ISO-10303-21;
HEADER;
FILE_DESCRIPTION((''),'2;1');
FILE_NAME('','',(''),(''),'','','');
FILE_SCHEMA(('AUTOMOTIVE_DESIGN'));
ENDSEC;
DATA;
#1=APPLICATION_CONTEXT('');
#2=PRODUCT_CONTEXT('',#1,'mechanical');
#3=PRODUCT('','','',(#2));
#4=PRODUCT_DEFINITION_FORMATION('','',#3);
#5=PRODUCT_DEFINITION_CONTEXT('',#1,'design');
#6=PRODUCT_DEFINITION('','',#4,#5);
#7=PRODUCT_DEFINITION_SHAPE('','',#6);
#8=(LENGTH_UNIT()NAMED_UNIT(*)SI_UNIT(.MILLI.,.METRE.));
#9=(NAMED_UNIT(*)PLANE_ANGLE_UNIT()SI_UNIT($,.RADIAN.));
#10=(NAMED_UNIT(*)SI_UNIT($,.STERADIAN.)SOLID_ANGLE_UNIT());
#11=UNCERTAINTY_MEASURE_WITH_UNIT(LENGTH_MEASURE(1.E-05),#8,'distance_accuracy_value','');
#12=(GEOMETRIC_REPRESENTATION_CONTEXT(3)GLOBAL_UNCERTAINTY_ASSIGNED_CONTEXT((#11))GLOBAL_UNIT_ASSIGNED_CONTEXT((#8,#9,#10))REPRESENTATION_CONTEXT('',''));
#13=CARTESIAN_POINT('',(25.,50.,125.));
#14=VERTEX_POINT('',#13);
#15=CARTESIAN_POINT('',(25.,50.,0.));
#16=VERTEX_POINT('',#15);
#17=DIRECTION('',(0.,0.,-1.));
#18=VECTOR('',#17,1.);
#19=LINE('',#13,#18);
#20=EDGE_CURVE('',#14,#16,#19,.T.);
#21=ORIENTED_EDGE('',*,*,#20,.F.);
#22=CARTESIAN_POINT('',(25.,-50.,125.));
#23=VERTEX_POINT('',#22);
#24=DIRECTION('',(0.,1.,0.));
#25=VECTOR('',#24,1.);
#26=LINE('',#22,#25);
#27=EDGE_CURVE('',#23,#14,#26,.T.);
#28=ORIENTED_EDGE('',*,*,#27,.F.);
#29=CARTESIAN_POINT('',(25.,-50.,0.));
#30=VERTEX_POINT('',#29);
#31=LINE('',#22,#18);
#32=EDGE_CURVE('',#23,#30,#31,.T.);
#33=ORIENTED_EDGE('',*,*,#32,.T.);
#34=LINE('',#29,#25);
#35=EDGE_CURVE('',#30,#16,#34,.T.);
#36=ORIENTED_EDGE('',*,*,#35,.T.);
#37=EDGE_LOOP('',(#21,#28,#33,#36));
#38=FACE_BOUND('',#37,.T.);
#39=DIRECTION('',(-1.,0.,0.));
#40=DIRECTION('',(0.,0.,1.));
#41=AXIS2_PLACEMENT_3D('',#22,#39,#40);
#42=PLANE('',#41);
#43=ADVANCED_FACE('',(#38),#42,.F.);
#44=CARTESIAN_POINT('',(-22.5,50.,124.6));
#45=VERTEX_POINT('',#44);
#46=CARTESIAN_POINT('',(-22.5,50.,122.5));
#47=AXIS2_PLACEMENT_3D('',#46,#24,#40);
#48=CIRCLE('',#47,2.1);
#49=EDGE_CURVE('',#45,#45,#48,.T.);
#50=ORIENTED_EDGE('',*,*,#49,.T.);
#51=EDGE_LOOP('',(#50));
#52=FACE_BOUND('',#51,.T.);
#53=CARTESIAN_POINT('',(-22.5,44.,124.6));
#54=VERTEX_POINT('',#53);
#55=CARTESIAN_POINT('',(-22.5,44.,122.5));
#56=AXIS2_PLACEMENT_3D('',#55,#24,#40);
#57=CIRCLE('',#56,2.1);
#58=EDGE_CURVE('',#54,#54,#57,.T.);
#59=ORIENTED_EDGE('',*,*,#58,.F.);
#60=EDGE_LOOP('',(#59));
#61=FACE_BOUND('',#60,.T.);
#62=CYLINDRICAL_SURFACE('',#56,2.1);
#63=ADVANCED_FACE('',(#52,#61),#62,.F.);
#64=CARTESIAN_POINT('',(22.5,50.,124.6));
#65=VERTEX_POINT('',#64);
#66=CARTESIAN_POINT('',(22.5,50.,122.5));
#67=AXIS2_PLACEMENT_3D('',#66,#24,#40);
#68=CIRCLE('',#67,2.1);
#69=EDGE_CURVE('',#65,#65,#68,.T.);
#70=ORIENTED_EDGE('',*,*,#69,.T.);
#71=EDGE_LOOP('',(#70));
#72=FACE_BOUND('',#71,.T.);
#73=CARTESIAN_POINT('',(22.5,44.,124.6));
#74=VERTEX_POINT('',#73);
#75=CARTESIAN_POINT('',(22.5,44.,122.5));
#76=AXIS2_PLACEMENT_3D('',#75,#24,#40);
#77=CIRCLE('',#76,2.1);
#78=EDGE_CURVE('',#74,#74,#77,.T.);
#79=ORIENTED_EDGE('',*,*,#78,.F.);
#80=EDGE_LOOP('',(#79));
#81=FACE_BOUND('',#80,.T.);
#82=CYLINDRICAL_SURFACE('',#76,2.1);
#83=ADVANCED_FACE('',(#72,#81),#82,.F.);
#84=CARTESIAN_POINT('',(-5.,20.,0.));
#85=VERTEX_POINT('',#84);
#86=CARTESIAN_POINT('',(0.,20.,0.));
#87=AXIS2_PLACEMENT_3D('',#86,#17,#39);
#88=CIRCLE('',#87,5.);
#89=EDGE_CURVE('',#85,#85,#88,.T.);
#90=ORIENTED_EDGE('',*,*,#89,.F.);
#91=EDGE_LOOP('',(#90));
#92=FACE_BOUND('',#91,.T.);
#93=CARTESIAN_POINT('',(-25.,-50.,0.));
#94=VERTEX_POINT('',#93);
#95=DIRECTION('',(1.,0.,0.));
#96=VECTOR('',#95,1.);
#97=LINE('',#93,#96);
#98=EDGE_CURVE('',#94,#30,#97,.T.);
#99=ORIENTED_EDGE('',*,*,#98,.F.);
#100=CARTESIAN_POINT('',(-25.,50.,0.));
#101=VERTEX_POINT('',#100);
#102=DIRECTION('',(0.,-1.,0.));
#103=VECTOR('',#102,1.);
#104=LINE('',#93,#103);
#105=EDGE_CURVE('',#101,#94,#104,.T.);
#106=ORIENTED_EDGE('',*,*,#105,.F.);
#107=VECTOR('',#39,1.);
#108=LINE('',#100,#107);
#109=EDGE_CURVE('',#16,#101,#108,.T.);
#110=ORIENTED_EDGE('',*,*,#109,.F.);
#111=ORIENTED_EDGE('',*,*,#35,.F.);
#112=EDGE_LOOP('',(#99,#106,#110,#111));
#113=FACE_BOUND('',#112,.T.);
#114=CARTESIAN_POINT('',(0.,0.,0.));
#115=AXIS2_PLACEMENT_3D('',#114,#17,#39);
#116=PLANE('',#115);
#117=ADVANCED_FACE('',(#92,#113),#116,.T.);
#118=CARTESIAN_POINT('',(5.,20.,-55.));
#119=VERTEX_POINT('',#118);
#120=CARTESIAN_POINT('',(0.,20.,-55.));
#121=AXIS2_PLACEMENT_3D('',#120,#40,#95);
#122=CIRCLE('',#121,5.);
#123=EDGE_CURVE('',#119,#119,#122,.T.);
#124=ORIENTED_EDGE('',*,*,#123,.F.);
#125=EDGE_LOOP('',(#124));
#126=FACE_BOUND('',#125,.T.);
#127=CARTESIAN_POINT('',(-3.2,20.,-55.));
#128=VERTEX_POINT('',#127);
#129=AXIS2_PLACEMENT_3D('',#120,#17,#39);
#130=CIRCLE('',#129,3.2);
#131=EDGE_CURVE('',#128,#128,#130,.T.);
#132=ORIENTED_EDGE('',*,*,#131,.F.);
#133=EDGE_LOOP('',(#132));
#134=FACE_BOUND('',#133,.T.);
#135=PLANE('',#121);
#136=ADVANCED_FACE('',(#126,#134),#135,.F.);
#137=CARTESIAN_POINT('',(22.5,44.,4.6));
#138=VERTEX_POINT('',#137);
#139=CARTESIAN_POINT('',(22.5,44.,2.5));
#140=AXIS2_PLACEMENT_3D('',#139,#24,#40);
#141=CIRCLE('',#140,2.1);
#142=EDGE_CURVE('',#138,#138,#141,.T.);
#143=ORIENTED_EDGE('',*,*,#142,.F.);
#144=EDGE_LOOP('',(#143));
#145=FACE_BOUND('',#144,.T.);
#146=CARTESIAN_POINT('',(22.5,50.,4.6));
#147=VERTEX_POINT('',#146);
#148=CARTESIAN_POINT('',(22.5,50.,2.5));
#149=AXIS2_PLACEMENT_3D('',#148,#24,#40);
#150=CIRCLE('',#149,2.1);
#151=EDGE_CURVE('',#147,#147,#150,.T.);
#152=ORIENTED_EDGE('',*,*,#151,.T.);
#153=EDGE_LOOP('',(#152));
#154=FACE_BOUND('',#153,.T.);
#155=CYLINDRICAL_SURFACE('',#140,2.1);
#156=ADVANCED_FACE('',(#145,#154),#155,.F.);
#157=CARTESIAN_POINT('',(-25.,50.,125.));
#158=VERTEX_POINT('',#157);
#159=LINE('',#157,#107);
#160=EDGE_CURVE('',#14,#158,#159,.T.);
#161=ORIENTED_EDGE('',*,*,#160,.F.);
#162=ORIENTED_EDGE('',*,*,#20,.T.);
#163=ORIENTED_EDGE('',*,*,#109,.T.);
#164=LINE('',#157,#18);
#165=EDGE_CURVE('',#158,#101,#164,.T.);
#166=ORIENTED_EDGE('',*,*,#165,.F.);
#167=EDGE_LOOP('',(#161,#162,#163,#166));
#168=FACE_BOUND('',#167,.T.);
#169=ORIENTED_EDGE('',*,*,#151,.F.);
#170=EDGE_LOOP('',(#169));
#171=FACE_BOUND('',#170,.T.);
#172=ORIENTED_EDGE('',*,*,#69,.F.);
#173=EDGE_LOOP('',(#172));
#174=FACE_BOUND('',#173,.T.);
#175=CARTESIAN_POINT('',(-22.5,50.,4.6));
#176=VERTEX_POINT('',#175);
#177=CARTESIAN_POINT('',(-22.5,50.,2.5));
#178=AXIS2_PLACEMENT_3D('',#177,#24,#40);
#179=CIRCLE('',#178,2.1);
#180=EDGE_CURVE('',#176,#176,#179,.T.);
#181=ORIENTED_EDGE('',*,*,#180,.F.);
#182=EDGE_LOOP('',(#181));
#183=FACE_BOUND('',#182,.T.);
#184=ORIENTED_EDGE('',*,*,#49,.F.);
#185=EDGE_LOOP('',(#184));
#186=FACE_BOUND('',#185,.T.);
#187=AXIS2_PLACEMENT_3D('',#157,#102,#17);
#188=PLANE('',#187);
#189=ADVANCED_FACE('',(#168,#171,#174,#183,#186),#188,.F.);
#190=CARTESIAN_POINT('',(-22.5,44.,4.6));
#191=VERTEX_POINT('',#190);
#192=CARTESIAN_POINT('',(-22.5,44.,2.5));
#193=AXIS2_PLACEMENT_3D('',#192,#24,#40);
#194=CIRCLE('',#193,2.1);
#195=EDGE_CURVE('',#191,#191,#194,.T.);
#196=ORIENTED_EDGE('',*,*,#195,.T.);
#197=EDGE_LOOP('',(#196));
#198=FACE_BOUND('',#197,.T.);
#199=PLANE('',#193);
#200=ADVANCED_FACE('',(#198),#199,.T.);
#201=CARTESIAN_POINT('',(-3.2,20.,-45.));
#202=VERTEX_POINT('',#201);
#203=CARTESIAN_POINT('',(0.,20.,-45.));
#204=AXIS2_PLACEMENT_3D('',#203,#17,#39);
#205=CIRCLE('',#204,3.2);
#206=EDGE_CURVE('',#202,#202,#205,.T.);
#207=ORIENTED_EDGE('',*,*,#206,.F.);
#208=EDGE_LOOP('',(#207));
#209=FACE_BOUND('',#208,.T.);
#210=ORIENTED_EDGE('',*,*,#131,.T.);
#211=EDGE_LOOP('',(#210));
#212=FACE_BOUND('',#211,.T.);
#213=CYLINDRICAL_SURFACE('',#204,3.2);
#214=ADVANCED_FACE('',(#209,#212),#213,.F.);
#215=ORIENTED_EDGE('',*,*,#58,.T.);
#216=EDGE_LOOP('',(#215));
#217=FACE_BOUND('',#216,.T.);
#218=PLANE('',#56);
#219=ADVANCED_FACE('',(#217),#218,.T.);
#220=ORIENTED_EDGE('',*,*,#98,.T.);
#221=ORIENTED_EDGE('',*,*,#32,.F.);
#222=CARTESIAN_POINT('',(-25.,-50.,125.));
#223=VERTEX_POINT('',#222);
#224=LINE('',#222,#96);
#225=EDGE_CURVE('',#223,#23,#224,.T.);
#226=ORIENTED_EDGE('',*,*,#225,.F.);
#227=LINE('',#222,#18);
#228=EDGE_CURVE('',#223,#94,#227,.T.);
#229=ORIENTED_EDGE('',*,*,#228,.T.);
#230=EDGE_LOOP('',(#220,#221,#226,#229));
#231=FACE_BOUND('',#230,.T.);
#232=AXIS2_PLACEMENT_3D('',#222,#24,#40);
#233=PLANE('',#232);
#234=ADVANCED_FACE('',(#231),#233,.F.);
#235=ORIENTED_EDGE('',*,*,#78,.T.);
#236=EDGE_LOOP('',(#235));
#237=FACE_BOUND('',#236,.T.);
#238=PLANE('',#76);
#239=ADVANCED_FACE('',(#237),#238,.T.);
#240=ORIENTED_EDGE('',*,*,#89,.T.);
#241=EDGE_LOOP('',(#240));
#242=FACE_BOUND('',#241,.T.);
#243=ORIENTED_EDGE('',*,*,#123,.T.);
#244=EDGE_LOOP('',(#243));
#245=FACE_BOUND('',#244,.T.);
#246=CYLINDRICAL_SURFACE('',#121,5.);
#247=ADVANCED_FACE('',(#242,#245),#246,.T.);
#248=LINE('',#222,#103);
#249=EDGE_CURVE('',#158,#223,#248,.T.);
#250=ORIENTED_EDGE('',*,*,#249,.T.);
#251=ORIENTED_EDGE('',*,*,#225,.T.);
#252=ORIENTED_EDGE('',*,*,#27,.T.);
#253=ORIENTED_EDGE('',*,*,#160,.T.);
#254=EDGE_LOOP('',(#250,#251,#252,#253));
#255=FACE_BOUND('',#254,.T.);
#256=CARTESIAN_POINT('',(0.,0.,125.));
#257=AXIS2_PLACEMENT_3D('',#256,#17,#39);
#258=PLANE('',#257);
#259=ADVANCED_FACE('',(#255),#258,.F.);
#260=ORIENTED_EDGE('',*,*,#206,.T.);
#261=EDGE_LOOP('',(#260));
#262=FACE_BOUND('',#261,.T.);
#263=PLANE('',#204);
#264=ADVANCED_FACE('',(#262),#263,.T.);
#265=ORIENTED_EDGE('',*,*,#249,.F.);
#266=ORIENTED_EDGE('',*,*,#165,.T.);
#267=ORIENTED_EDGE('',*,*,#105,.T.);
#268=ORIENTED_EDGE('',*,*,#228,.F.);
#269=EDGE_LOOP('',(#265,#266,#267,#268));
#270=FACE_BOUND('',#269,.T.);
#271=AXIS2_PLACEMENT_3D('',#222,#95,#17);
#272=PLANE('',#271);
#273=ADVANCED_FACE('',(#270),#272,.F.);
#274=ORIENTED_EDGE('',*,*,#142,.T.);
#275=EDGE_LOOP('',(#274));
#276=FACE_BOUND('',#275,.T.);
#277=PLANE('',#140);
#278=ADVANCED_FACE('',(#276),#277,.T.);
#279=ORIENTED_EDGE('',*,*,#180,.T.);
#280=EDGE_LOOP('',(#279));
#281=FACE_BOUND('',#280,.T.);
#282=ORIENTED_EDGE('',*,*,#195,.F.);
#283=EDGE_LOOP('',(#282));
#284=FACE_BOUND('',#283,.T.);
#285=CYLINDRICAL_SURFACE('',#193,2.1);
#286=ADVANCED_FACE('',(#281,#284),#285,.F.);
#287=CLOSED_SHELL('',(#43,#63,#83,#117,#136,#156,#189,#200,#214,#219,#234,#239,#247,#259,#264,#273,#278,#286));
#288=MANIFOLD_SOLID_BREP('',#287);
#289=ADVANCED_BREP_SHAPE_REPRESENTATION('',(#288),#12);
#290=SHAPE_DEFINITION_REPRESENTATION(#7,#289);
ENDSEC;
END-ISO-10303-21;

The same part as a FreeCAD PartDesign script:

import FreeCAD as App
import Part
import Sketcher
Q = App.Units.Quantity

doc = App.newDocument("Part")
body = doc.addObject("PartDesign::Body", "Body")

# Sketch on XY plane
sketch1 = body.newObject("Sketcher::SketchObject", "Sketch")
sketch1.AttachmentSupport = (doc.getObject("XY_Plane"), [""])
sketch1.MapMode = "FlatFace"
sketch1.addGeometry(Part.LineSegment(App.Vector(-25, 50, 0), App.Vector(-25, -50, 0)), False)
sketch1.addGeometry(Part.LineSegment(App.Vector(-25, -50, 0), App.Vector(25, -50, 0)), False)
sketch1.addGeometry(Part.LineSegment(App.Vector(25, -50, 0), App.Vector(25, 50, 0)), False)
sketch1.addGeometry(Part.LineSegment(App.Vector(25, 50, 0), App.Vector(-25, 50, 0)), False)
sketch1.addConstraint(Sketcher.Constraint("Coincident", 0, 2, 1, 1))
sketch1.addConstraint(Sketcher.Constraint("Coincident", 1, 2, 2, 1))
sketch1.addConstraint(Sketcher.Constraint("Coincident", 2, 2, 3, 1))
sketch1.addConstraint(Sketcher.Constraint("Coincident", 3, 2, 0, 1))
sketch1.addConstraint(Sketcher.Constraint("Vertical", 0))
sketch1.addConstraint(Sketcher.Constraint("Horizontal", 1))
sketch1.addConstraint(Sketcher.Constraint("Vertical", 2))
sketch1.addConstraint(Sketcher.Constraint("Horizontal", 3))
sketch1.addConstraint(Sketcher.Constraint("Symmetric", 0, 2, 2, 2, -1, 1))
sketch1.addConstraint(Sketcher.Constraint("DistanceX", 1, 1, 1, 2, Q("50 mm")))
sketch1.addConstraint(Sketcher.Constraint("DistanceY", 0, 2, 0, 1, Q("100 mm")))
pad1 = body.newObject("PartDesign::Pad", "Pad")
pad1.Profile = sketch1
pad1.Length = 125

# Sketch on XY plane
sketch2 = body.newObject("Sketcher::SketchObject", "Sketch001")
sketch2.AttachmentSupport = (doc.getObject("XY_Plane"), [""])
sketch2.MapMode = "FlatFace"
sketch2.addGeometry(Part.Circle(App.Vector(0, 20, 0), App.Vector(0, 0, 1), 5), False)
sketch2.addConstraint(Sketcher.Constraint("PointOnObject", 0, 3, -2))
sketch2.addConstraint(Sketcher.Constraint("Diameter", 0, Q("10 mm")))
sketch2.addConstraint(Sketcher.Constraint("DistanceY", -1, 1, 0, 3, Q("20 mm")))
pad2 = body.newObject("PartDesign::Pad", "Pad001")
pad2.Profile = sketch2
pad2.Length = 55
pad2.Reversed = True

# Sketch on XZ plane
sketch3 = body.newObject("Sketcher::SketchObject", "Sketch002")
sketch3.AttachmentSupport = (doc.getObject("XZ_Plane"), [""])
sketch3.MapMode = "FlatFace"
sketch3.AttachmentOffset = App.Placement(App.Vector(0, 0, -50), App.Rotation())
sketch3.addGeometry(Part.Circle(App.Vector(-22.5, 2.5, 0), App.Vector(0, 0, 1), 2.1), False)
sketch3.addGeometry(Part.Circle(App.Vector(22.5, 2.5, 0), App.Vector(0, 0, 1), 2.1), False)
sketch3.addGeometry(Part.Circle(App.Vector(22.5, 122.5, 0), App.Vector(0, 0, 1), 2.1), False)
sketch3.addGeometry(Part.Circle(App.Vector(-22.5, 122.5, 0), App.Vector(0, 0, 1), 2.1), False)
sketch3.addConstraint(Sketcher.Constraint("Equal", 0, 1))
sketch3.addConstraint(Sketcher.Constraint("Equal", 1, 2))
sketch3.addConstraint(Sketcher.Constraint("Equal", 2, 3))
sketch3.addConstraint(Sketcher.Constraint("Symmetric", 0, 3, 1, 3, -2))
sketch3.addConstraint(Sketcher.Constraint("Symmetric", 2, 3, 3, 3, -2))
sketch3.addConstraint(Sketcher.Constraint("Vertical", 1, 3, 2, 3))
sketch3.addConstraint(Sketcher.Constraint("Diameter", 0, Q("4.2 mm")))
sketch3.addConstraint(Sketcher.Constraint("DistanceX", 0, 3, 1, 3, Q("45 mm")))
sketch3.addConstraint(Sketcher.Constraint("DistanceY", 1, 3, 2, 3, Q("120 mm")))
sketch3.addConstraint(Sketcher.Constraint("DistanceY", -1, 1, 0, 3, Q("2.5 mm")))
pocket1 = body.newObject("PartDesign::Pocket", "Pocket")
pocket1.Profile = sketch3
pocket1.Length = 6
pocket1.Reversed = True

# Sketch on XY plane
sketch4 = body.newObject("Sketcher::SketchObject", "Sketch003")
sketch4.AttachmentSupport = (doc.getObject("XY_Plane"), [""])
sketch4.MapMode = "FlatFace"
sketch4.AttachmentOffset = App.Placement(App.Vector(0, 0, -55), App.Rotation())
sketch4.addGeometry(Part.Circle(App.Vector(0, 20, 0), App.Vector(0, 0, 1), 3.2), False)
sketch4.addConstraint(Sketcher.Constraint("PointOnObject", 0, 3, -2))
sketch4.addConstraint(Sketcher.Constraint("Diameter", 0, Q("6.4 mm")))
sketch4.addConstraint(Sketcher.Constraint("DistanceY", -1, 1, 0, 3, Q("20 mm")))
pocket2 = body.newObject("PartDesign::Pocket", "Pocket001")
pocket2.Profile = sketch4
pocket2.Length = 10
pocket2.Reversed = True

doc.recompute()
